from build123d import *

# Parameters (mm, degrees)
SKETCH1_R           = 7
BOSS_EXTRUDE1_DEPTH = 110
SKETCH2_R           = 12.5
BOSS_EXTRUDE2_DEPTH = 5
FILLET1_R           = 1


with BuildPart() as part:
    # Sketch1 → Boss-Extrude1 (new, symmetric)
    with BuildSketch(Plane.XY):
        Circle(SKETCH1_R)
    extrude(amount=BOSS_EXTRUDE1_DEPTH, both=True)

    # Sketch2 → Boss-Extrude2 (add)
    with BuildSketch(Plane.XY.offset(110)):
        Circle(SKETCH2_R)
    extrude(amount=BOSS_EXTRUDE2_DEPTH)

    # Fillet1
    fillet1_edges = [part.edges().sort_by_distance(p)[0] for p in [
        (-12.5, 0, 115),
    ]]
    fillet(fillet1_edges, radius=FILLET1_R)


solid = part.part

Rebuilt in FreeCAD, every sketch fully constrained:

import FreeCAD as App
import Part
import Sketcher

V = App.Vector


def edges_at(feature, points):
    """Names of the edges that pass closest to the given points."""
    edges = feature.Shape.Edges
    near = lambda p: min(range(len(edges)), key=lambda i: edges[i].distToShape(Part.Vertex(*p))[0])
    return sorted({f"Edge{near(p) + 1}" for p in points})

doc = App.newDocument("Part")
body = doc.addObject("PartDesign::Body", "Body")

sketch1 = body.newObject("Sketcher::SketchObject", "Sketch")
sketch1.AttachmentSupport = (doc.getObject("XY_Plane"), [""])
sketch1.MapMode = "FlatFace"
sketch1.addGeometry(Part.Circle(V(0, 0, 0), V(0, 0, 1), 7), False)
sketch1.addConstraint(Sketcher.Constraint("Coincident", 0, 3, -1, 1))
sketch1.addConstraint(Sketcher.Constraint("Diameter", 0, 14.0))
pad1 = body.newObject("PartDesign::Pad", "Pad")
pad1.Profile = sketch1
pad1.Length = 220
pad1.Midplane = True

sketch2 = body.newObject("Sketcher::SketchObject", "Sketch001")
sketch2.AttachmentSupport = (doc.getObject("XY_Plane"), [""])
sketch2.MapMode = "FlatFace"
sketch2.AttachmentOffset = App.Placement(V(0, 0, 110), App.Rotation())
sketch2.addGeometry(Part.Circle(V(0, 0, 0), V(0, 0, 1), 12.5), False)
sketch2.addConstraint(Sketcher.Constraint("Coincident", 0, 3, -1, 1))
sketch2.addConstraint(Sketcher.Constraint("Diameter", 0, 25.0))
pad2 = body.newObject("PartDesign::Pad", "Pad001")
pad2.Profile = sketch2
pad2.Length = 5
doc.recompute()

fillet = body.newObject("PartDesign::Fillet", "Fillet")
fillet.Base = (pad2, edges_at(pad2, [(-12.5, 0, 115)]))
fillet.Radius = 1

doc.recompute()
